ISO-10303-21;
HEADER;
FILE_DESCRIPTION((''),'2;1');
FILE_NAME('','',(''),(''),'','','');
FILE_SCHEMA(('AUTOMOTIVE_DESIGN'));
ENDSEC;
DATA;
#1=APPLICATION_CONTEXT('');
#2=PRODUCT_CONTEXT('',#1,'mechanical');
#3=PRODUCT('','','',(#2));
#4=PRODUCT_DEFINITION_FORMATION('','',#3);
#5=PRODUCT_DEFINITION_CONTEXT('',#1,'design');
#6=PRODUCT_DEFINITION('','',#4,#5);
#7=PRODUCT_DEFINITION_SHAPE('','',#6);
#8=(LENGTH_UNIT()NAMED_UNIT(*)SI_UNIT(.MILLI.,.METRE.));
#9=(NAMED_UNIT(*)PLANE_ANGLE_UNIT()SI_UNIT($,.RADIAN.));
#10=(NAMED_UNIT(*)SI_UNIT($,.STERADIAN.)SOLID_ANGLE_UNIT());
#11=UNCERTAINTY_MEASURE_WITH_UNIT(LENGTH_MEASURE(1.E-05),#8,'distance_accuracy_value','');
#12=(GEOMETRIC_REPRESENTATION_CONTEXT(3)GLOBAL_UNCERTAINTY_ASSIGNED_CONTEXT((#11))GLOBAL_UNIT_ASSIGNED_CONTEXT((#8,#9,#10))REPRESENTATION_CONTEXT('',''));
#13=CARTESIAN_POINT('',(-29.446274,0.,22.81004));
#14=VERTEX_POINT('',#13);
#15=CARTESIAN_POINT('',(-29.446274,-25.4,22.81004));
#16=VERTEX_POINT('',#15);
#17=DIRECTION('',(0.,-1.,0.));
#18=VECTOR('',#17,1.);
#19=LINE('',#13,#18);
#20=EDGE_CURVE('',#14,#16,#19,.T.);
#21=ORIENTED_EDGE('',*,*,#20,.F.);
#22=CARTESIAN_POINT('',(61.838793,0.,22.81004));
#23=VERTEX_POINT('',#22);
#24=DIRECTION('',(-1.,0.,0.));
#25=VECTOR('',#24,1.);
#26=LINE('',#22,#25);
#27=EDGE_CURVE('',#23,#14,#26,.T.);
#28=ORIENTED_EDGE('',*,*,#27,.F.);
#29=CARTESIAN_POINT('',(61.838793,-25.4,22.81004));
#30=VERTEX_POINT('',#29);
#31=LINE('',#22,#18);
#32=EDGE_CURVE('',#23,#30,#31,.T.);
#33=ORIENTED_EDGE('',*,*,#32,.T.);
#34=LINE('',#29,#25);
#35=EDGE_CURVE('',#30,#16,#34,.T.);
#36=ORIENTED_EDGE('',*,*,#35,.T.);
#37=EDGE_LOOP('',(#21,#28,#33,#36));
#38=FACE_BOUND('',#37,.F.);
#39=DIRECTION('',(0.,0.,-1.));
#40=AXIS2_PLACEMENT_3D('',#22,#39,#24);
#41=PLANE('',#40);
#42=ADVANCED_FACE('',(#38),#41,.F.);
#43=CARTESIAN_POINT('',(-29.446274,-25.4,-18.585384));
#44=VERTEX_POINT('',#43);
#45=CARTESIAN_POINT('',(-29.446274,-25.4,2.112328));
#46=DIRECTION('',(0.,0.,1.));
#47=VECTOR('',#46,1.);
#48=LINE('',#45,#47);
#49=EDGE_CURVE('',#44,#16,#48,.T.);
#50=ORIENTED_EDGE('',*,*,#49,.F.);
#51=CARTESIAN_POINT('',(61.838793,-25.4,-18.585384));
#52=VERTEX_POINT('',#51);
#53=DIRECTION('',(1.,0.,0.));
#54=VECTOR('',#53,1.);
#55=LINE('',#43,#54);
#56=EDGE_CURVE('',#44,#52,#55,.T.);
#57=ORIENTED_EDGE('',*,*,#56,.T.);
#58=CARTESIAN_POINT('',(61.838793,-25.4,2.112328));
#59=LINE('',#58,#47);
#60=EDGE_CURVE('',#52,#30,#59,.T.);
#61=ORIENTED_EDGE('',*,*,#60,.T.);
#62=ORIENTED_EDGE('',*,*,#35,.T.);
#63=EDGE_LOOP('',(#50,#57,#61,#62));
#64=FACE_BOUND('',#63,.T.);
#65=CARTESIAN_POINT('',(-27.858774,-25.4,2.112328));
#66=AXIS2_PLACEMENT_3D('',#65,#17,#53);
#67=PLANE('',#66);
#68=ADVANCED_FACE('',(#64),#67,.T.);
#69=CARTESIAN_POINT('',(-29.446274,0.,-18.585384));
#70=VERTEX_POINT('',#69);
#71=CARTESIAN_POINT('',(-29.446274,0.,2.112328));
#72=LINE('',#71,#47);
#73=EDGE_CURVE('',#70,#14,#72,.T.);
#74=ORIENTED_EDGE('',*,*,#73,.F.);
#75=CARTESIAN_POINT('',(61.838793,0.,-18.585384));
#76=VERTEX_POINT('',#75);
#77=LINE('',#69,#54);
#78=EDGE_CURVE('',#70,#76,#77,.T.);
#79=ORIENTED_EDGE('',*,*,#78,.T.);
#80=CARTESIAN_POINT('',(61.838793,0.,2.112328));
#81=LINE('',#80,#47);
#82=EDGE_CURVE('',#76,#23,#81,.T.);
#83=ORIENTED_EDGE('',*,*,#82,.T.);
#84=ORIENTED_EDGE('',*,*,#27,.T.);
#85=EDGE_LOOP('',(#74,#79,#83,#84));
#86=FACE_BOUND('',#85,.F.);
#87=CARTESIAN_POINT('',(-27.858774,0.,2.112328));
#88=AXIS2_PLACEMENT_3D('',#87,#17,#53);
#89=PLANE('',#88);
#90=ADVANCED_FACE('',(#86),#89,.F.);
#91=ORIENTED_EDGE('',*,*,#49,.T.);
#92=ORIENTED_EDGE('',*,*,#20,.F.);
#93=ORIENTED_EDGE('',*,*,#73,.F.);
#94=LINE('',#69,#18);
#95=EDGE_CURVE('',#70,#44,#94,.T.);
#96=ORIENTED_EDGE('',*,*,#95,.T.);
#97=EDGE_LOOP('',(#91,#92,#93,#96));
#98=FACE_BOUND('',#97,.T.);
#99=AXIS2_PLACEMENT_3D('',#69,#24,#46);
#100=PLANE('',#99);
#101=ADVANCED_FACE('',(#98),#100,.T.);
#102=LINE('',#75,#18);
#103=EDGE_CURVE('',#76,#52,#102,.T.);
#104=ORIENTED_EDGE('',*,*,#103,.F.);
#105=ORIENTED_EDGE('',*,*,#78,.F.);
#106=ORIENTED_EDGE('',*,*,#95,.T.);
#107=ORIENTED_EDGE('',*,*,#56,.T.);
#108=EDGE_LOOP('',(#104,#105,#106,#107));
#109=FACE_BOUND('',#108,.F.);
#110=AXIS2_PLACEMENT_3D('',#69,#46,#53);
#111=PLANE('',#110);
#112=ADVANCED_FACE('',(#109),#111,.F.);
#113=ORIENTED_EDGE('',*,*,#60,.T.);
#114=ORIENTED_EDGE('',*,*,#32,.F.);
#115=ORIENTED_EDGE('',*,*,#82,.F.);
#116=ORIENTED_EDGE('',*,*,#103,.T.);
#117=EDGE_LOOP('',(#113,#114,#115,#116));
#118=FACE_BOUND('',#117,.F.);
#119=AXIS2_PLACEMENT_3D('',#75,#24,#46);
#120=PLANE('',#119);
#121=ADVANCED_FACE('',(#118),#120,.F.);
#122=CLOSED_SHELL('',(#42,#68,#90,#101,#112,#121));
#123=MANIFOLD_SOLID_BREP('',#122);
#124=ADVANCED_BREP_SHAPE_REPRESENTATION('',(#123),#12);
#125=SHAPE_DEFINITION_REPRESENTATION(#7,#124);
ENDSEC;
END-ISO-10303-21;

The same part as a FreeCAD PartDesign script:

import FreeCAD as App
import Part
import Sketcher

V = App.Vector
Q = App.Units.Quantity


def add_polygon(sketch, points):
    """Adds a closed chain of lines whose ends are joined by coincident constraints."""
    first, n = sketch.GeometryCount, len(points)
    for a, b in zip(points, points[1:] + points[:1]):
        sketch.addGeometry(Part.LineSegment(App.Vector(*a, 0), App.Vector(*b, 0)), False)
    for i in range(n):
        sketch.addConstraint(Sketcher.Constraint("Coincident", first + i, 2, first + (i + 1) % n, 1))

doc = App.newDocument("Part")
body = doc.addObject("PartDesign::Body", "Body")

# Sketch on XZ plane
sketch1 = body.newObject("Sketcher::SketchObject", "Sketch")
sketch1.AttachmentSupport = (doc.getObject("XZ_Plane"), [""])
sketch1.MapMode = "FlatFace"
add_polygon(sketch1, [(-29, 23), (-29, -19), (62, -19), (62, 23)])  # lines 0-3
sketch1.addConstraint([
    Sketcher.Constraint("Vertical", 0),
    Sketcher.Constraint("Horizontal", 1),
    Sketcher.Constraint("Vertical", 2),
    Sketcher.Constraint("Horizontal", 3),
    Sketcher.Constraint("DistanceX", 1, 1, 1, 2, Q("91.285067 mm")),
    Sketcher.Constraint("DistanceY", 0, 2, 0, 1, Q("41.395424 mm")),
    Sketcher.Constraint("DistanceY", -1, 1, 2, 2, Q("22.81004 mm")),
    Sketcher.Constraint("DistanceX", 0, 2, -1, 1, Q("29.446274 mm")),
])
pad1 = body.newObject("PartDesign::Pad", "Pad")
pad1.Profile = sketch1
pad1.Length = Q("1 in")

doc.recompute()
